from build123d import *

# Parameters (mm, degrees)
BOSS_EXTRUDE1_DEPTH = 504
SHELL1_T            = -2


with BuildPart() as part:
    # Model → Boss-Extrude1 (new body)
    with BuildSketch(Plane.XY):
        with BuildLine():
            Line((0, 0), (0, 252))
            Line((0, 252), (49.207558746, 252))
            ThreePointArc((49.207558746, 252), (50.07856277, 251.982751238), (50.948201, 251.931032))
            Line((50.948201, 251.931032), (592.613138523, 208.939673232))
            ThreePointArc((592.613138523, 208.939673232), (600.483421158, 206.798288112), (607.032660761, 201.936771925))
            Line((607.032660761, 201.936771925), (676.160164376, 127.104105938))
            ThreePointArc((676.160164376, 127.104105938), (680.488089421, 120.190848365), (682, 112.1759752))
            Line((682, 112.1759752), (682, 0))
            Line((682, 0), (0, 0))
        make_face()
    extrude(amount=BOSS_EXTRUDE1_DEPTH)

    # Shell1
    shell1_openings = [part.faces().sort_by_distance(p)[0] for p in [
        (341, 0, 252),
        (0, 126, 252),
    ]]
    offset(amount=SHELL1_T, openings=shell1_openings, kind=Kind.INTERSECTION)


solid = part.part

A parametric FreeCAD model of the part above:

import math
import FreeCAD as App
import Part
import Sketcher
from FreeCAD import Vector


def faces_at(feature, points):
    """Names of the faces that lie closest to the given points."""
    faces = feature.Shape.Faces
    near = lambda p: min(range(len(faces)), key=lambda i: faces[i].distToShape(Part.Vertex(*p))[0])
    return sorted({f"Face{near(p) + 1}" for p in points})

doc = App.newDocument("Part")
body = doc.addObject("PartDesign::Body", "Body")

# Sketch on XY plane
sketch1 = body.newObject("Sketcher::SketchObject", "Sketch")
sketch1.AttachmentSupport = (doc.getObject("XY_Plane"), [""])
sketch1.MapMode = "FlatFace"
sketch1.addGeometry([
    Part.LineSegment(Vector(0, 252, 0), Vector(0, 0, 0)),  # 0
    Part.LineSegment(Vector(0, 0, 0), Vector(682, 0, 0)),  # 1
    Part.LineSegment(Vector(682, 0, 0), Vector(682, 112.2, 0)),  # 2
    Part.ArcOfCircle(Part.Circle(Vector(660, 112.2, 0), Vector(0, 0, 1), 22), math.radians(0), math.radians(43)),  # 3
    Part.LineSegment(Vector(676.2, 127.1, 0), Vector(607, 201.9, 0)),  # 4
    Part.ArcOfCircle(Part.Circle(Vector(590.9, 187, 0), Vector(0, 0, 1), 22), math.radians(43), math.radians(85)),  # 5
    Part.LineSegment(Vector(592.6, 208.9, 0), Vector(50.9, 251.9, 0)),  # 6
    Part.ArcOfCircle(Part.Circle(Vector(49.2, 230, 0), Vector(0, 0, 1), 22), math.radians(85.46), math.radians(90)),  # 7
    Part.LineSegment(Vector(49.2, 252, 0), Vector(0, 252, 0)),  # 8
], False)
sketch1.addConstraint([
    Sketcher.Constraint("Coincident", 0, 2, 1, 1),
    Sketcher.Constraint("Coincident", 1, 2, 2, 1),
    Sketcher.Constraint("Tangent", 2, 2, 3, 1),
    Sketcher.Constraint("Tangent", 3, 2, 4, 1),
    Sketcher.Constraint("Tangent", 4, 2, 5, 1),
    Sketcher.Constraint("Tangent", 5, 2, 6, 1),
    Sketcher.Constraint("Tangent", 6, 2, 7, 1),
    Sketcher.Constraint("Tangent", 7, 2, 8, 1),
    Sketcher.Constraint("Coincident", 8, 2, 0, 1),
    Sketcher.Constraint("Vertical", 0),
    Sketcher.Constraint("Horizontal", 1),
    Sketcher.Constraint("Vertical", 2),
    Sketcher.Constraint("Horizontal", 8),
    Sketcher.Constraint("Coincident", 0, 2, -1, 1),
    Sketcher.Constraint("Equal", 3, 5),
    Sketcher.Constraint("Equal", 5, 7),
    Sketcher.Constraint("Radius", 3, 22.0),
    Sketcher.Constraint("DistanceX", 1, 1, 1, 2, 682.0),
    Sketcher.Constraint("DistanceY", 0, 2, 0, 1, 252.0),
    Sketcher.Constraint("DistanceX", 8, 2, 8, 1, 49.207559),
    Sketcher.Constraint("DistanceX", -1, 1, 6, 2, 50.948201),
    Sketcher.Constraint("DistanceY", 4, 2, 5, 2, 7.002901),
    Sketcher.Constraint("DistanceY", 3, 3, 5, 2, 96.763698),
])
pad1 = body.newObject("PartDesign::Pad", "Pad")
pad1.Profile = sketch1
pad1.Length = 504
doc.recompute()

thickness = body.newObject("PartDesign::Thickness", "Thickness")
thickness.Base = (pad1, faces_at(pad1, [(341, 0, 252), (0, 126, 252)]))
thickness.Value = 2
thickness.Reversed = True
thickness.Join = "Intersection"

doc.recompute()
